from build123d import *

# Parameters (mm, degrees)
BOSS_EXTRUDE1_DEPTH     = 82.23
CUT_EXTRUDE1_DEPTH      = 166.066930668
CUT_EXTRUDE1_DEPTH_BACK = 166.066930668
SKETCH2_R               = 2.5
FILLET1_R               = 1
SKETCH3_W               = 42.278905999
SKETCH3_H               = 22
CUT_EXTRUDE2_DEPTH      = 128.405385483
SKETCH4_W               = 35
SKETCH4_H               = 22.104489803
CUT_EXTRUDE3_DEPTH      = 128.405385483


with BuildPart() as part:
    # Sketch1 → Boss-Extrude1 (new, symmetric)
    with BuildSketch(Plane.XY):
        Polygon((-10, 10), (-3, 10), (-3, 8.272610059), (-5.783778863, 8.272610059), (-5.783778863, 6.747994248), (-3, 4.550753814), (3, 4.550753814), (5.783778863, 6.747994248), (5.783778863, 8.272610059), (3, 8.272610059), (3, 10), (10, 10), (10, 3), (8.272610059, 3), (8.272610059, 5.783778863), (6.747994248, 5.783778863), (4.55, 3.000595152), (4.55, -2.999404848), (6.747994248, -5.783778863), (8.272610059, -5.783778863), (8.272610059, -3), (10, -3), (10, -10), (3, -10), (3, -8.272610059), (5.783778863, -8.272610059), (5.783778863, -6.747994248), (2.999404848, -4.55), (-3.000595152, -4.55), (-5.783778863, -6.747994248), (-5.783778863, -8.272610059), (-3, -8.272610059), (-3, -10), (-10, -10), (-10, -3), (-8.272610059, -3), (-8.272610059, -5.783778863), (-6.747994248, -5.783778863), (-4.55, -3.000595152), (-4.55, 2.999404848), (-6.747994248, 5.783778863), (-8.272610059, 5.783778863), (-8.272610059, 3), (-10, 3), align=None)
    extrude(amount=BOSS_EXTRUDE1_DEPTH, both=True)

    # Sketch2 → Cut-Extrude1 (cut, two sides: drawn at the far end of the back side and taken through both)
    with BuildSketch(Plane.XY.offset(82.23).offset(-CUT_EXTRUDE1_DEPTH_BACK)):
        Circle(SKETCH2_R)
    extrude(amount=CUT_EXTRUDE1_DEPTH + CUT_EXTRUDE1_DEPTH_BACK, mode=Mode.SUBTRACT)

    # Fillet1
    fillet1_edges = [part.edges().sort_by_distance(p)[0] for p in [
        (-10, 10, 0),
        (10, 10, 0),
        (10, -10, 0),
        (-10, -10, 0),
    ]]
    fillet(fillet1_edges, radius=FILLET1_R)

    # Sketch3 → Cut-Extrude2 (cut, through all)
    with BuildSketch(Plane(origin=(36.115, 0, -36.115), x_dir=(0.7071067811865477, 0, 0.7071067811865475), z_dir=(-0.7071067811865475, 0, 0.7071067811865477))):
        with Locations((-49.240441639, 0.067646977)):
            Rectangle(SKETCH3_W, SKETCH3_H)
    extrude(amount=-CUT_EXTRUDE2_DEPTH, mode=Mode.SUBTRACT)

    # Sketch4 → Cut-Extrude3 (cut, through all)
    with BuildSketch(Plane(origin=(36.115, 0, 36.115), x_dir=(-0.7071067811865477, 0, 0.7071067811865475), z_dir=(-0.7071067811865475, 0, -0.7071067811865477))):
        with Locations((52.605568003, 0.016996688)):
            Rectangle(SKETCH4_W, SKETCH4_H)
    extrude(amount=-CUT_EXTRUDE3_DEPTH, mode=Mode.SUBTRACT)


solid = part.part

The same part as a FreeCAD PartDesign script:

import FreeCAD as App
import Part
import Sketcher
from FreeCAD import Vector
Q = App.Units.Quantity


def edges_at(feature, points):
    """Names of the edges that pass closest to the given points."""
    edges = feature.Shape.Edges
    near = lambda p: min(range(len(edges)), key=lambda i: edges[i].distToShape(Part.Vertex(*p))[0])
    return sorted({f"Edge{near(p) + 1}" for p in points})

doc = App.newDocument("Part")
body = doc.addObject("PartDesign::Body", "Body")

# Sketch on XY plane
sketch1 = doc.addObject("Sketcher::SketchObject", "Sketch")
body.addObject(sketch1)
sketch1.AttachmentSupport = (doc.XY_Plane, [""])
sketch1.MapMode = "FlatFace"
sketch1.addGeometry(Part.LineSegment(Vector(-3, 10, 0), Vector(-10, 10, 0)), False)
sketch1.addGeometry(Part.LineSegment(Vector(-10, 10, 0), Vector(-10, 3, 0)), False)
sketch1.addGeometry(Part.LineSegment(Vector(-10, 3, 0), Vector(-8.3, 3, 0)), False)
sketch1.addGeometry(Part.LineSegment(Vector(-8.3, 3, 0), Vector(-8.3, 5.8, 0)), False)
sketch1.addGeometry(Part.LineSegment(Vector(-8.3, 5.8, 0), Vector(-6.7, 5.8, 0)), False)
sketch1.addGeometry(Part.LineSegment(Vector(-6.7, 5.8, 0), Vector(-4.5, 3, 0)), False)
sketch1.addGeometry(Part.LineSegment(Vector(-4.5, 3, 0), Vector(-4.5, -3, 0)), False)
sketch1.addGeometry(Part.LineSegment(Vector(-4.5, -3, 0), Vector(-6.7, -5.8, 0)), False)
sketch1.addGeometry(Part.LineSegment(Vector(-6.7, -5.8, 0), Vector(-8.3, -5.8, 0)), False)
sketch1.addGeometry(Part.LineSegment(Vector(-8.3, -5.8, 0), Vector(-8.3, -3, 0)), False)
sketch1.addGeometry(Part.LineSegment(Vector(-8.3, -3, 0), Vector(-10, -3, 0)), False)
sketch1.addGeometry(Part.LineSegment(Vector(-10, -3, 0), Vector(-10, -10, 0)), False)
sketch1.addGeometry(Part.LineSegment(Vector(-10, -10, 0), Vector(-3, -10, 0)), False)
sketch1.addGeometry(Part.LineSegment(Vector(-3, -10, 0), Vector(-3, -8.3, 0)), False)
sketch1.addGeometry(Part.LineSegment(Vector(-3, -8.3, 0), Vector(-5.8, -8.3, 0)), False)
sketch1.addGeometry(Part.LineSegment(Vector(-5.8, -8.3, 0), Vector(-5.8, -6.7, 0)), False)
sketch1.addGeometry(Part.LineSegment(Vector(-5.8, -6.7, 0), Vector(-3, -4.5, 0)), False)
sketch1.addGeometry(Part.LineSegment(Vector(-3, -4.5, 0), Vector(3, -4.5, 0)), False)
sketch1.addGeometry(Part.LineSegment(Vector(3, -4.5, 0), Vector(5.8, -6.7, 0)), False)
sketch1.addGeometry(Part.LineSegment(Vector(5.8, -6.7, 0), Vector(5.8, -8.3, 0)), False)
sketch1.addGeometry(Part.LineSegment(Vector(5.8, -8.3, 0), Vector(3, -8.3, 0)), False)
sketch1.addGeometry(Part.LineSegment(Vector(3, -8.3, 0), Vector(3, -10, 0)), False)
sketch1.addGeometry(Part.LineSegment(Vector(3, -10, 0), Vector(10, -10, 0)), False)
sketch1.addGeometry(Part.LineSegment(Vector(10, -10, 0), Vector(10, -3, 0)), False)
sketch1.addGeometry(Part.LineSegment(Vector(10, -3, 0), Vector(8.3, -3, 0)), False)
sketch1.addGeometry(Part.LineSegment(Vector(8.3, -3, 0), Vector(8.3, -5.8, 0)), False)
sketch1.addGeometry(Part.LineSegment(Vector(8.3, -5.8, 0), Vector(6.7, -5.8, 0)), False)
sketch1.addGeometry(Part.LineSegment(Vector(6.7, -5.8, 0), Vector(4.5, -3, 0)), False)
sketch1.addGeometry(Part.LineSegment(Vector(4.5, -3, 0), Vector(4.5, 3, 0)), False)
sketch1.addGeometry(Part.LineSegment(Vector(4.5, 3, 0), Vector(6.7, 5.8, 0)), False)
sketch1.addGeometry(Part.LineSegment(Vector(6.7, 5.8, 0), Vector(8.3, 5.8, 0)), False)
sketch1.addGeometry(Part.LineSegment(Vector(8.3, 5.8, 0), Vector(8.3, 3, 0)), False)
sketch1.addGeometry(Part.LineSegment(Vector(8.3, 3, 0), Vector(10, 3, 0)), False)
sketch1.addGeometry(Part.LineSegment(Vector(10, 3, 0), Vector(10, 10, 0)), False)
sketch1.addGeometry(Part.LineSegment(Vector(10, 10, 0), Vector(3, 10, 0)), False)
sketch1.addGeometry(Part.LineSegment(Vector(3, 10, 0), Vector(3, 8.3, 0)), False)
sketch1.addGeometry(Part.LineSegment(Vector(3, 8.3, 0), Vector(5.8, 8.3, 0)), False)
sketch1.addGeometry(Part.LineSegment(Vector(5.8, 8.3, 0), Vector(5.8, 6.7, 0)), False)
sketch1.addGeometry(Part.LineSegment(Vector(5.8, 6.7, 0), Vector(3, 4.6, 0)), False)
sketch1.addGeometry(Part.LineSegment(Vector(3, 4.6, 0), Vector(-3, 4.6, 0)), False)
sketch1.addGeometry(Part.LineSegment(Vector(-3, 4.6, 0), Vector(-5.8, 6.7, 0)), False)
sketch1.addGeometry(Part.LineSegment(Vector(-5.8, 6.7, 0), Vector(-5.8, 8.3, 0)), False)
sketch1.addGeometry(Part.LineSegment(Vector(-5.8, 8.3, 0), Vector(-3, 8.3, 0)), False)
sketch1.addGeometry(Part.LineSegment(Vector(-3, 8.3, 0), Vector(-3, 10, 0)), False)
sketch1.addConstraint(Sketcher.Constraint("Coincident", 0, 2, 1, 1))
sketch1.addConstraint(Sketcher.Constraint("Coincident", 1, 2, 2, 1))
sketch1.addConstraint(Sketcher.Constraint("Coincident", 2, 2, 3, 1))
sketch1.addConstraint(Sketcher.Constraint("Coincident", 3, 2, 4, 1))
sketch1.addConstraint(Sketcher.Constraint("Coincident", 4, 2, 5, 1))
sketch1.addConstraint(Sketcher.Constraint("Coincident", 5, 2, 6, 1))
sketch1.addConstraint(Sketcher.Constraint("Coincident", 6, 2, 7, 1))
sketch1.addConstraint(Sketcher.Constraint("Coincident", 7, 2, 8, 1))
sketch1.addConstraint(Sketcher.Constraint("Coincident", 8, 2, 9, 1))
sketch1.addConstraint(Sketcher.Constraint("Coincident", 9, 2, 10, 1))
sketch1.addConstraint(Sketcher.Constraint("Coincident", 10, 2, 11, 1))
sketch1.addConstraint(Sketcher.Constraint("Coincident", 11, 2, 12, 1))
sketch1.addConstraint(Sketcher.Constraint("Coincident", 12, 2, 13, 1))
sketch1.addConstraint(Sketcher.Constraint("Coincident", 13, 2, 14, 1))
sketch1.addConstraint(Sketcher.Constraint("Coincident", 14, 2, 15, 1))
sketch1.addConstraint(Sketcher.Constraint("Coincident", 15, 2, 16, 1))
sketch1.addConstraint(Sketcher.Constraint("Coincident", 16, 2, 17, 1))
sketch1.addConstraint(Sketcher.Constraint("Coincident", 17, 2, 18, 1))
sketch1.addConstraint(Sketcher.Constraint("Coincident", 18, 2, 19, 1))
sketch1.addConstraint(Sketcher.Constraint("Coincident", 19, 2, 20, 1))
sketch1.addConstraint(Sketcher.Constraint("Coincident", 20, 2, 21, 1))
sketch1.addConstraint(Sketcher.Constraint("Coincident", 21, 2, 22, 1))
sketch1.addConstraint(Sketcher.Constraint("Coincident", 22, 2, 23, 1))
sketch1.addConstraint(Sketcher.Constraint("Coincident", 23, 2, 24, 1))
sketch1.addConstraint(Sketcher.Constraint("Coincident", 24, 2, 25, 1))
sketch1.addConstraint(Sketcher.Constraint("Coincident", 25, 2, 26, 1))
sketch1.addConstraint(Sketcher.Constraint("Coincident", 26, 2, 27, 1))
sketch1.addConstraint(Sketcher.Constraint("Coincident", 27, 2, 28, 1))
sketch1.addConstraint(Sketcher.Constraint("Coincident", 28, 2, 29, 1))
sketch1.addConstraint(Sketcher.Constraint("Coincident", 29, 2, 30, 1))
sketch1.addConstraint(Sketcher.Constraint("Coincident", 30, 2, 31, 1))
sketch1.addConstraint(Sketcher.Constraint("Coincident", 31, 2, 32, 1))
sketch1.addConstraint(Sketcher.Constraint("Coincident", 32, 2, 33, 1))
sketch1.addConstraint(Sketcher.Constraint("Coincident", 33, 2, 34, 1))
sketch1.addConstraint(Sketcher.Constraint("Coincident", 34, 2, 35, 1))
sketch1.addConstraint(Sketcher.Constraint("Coincident", 35, 2, 36, 1))
sketch1.addConstraint(Sketcher.Constraint("Coincident", 36, 2, 37, 1))
sketch1.addConstraint(Sketcher.Constraint("Coincident", 37, 2, 38, 1))
sketch1.addConstraint(Sketcher.Constraint("Coincident", 38, 2, 39, 1))
sketch1.addConstraint(Sketcher.Constraint("Coincident", 39, 2, 40, 1))
sketch1.addConstraint(Sketcher.Constraint("Coincident", 40, 2, 41, 1))
sketch1.addConstraint(Sketcher.Constraint("Coincident", 41, 2, 42, 1))
sketch1.addConstraint(Sketcher.Constraint("Coincident", 42, 2, 43, 1))
sketch1.addConstraint(Sketcher.Constraint("Coincident", 43, 2, 0, 1))
sketch1.addConstraint(Sketcher.Constraint("Horizontal", 0))
sketch1.addConstraint(Sketcher.Constraint("Vertical", 1))
sketch1.addConstraint(Sketcher.Constraint("Horizontal", 2))
sketch1.addConstraint(Sketcher.Constraint("Vertical", 3))
sketch1.addConstraint(Sketcher.Constraint("Horizontal", 4))
sketch1.addConstraint(Sketcher.Constraint("Vertical", 6))
sketch1.addConstraint(Sketcher.Constraint("Horizontal", 8))
sketch1.addConstraint(Sketcher.Constraint("Vertical", 9))
sketch1.addConstraint(Sketcher.Constraint("Horizontal", 10))
sketch1.addConstraint(Sketcher.Constraint("Vertical", 11))
sketch1.addConstraint(Sketcher.Constraint("Horizontal", 12))
sketch1.addConstraint(Sketcher.Constraint("Vertical", 13))
sketch1.addConstraint(Sketcher.Constraint("Horizontal", 14))
sketch1.addConstraint(Sketcher.Constraint("Vertical", 15))
sketch1.addConstraint(Sketcher.Constraint("Horizontal", 17))
sketch1.addConstraint(Sketcher.Constraint("Vertical", 19))
sketch1.addConstraint(Sketcher.Constraint("Horizontal", 20))
sketch1.addConstraint(Sketcher.Constraint("Vertical", 21))
sketch1.addConstraint(Sketcher.Constraint("Horizontal", 22))
sketch1.addConstraint(Sketcher.Constraint("Vertical", 23))
sketch1.addConstraint(Sketcher.Constraint("Horizontal", 24))
sketch1.addConstraint(Sketcher.Constraint("Vertical", 25))
sketch1.addConstraint(Sketcher.Constraint("Horizontal", 26))
sketch1.addConstraint(Sketcher.Constraint("Vertical", 28))
sketch1.addConstraint(Sketcher.Constraint("Horizontal", 30))
sketch1.addConstraint(Sketcher.Constraint("Vertical", 31))
sketch1.addConstraint(Sketcher.Constraint("Horizontal", 32))
sketch1.addConstraint(Sketcher.Constraint("Vertical", 33))
sketch1.addConstraint(Sketcher.Constraint("Horizontal", 34))
sketch1.addConstraint(Sketcher.Constraint("Vertical", 35))
sketch1.addConstraint(Sketcher.Constraint("Horizontal", 36))
sketch1.addConstraint(Sketcher.Constraint("Vertical", 37))
sketch1.addConstraint(Sketcher.Constraint("Horizontal", 39))
sketch1.addConstraint(Sketcher.Constraint("Vertical", 41))
sketch1.addConstraint(Sketcher.Constraint("Horizontal", 42))
sketch1.addConstraint(Sketcher.Constraint("Vertical", 43))
sketch1.addConstraint(Sketcher.Constraint("Symmetric", 0, 2, 22, 2, -1, 1))
sketch1.addConstraint(Sketcher.Constraint("Symmetric", 2, 2, 24, 2, -1, 1))
sketch1.addConstraint(Sketcher.Constraint("Symmetric", 4, 2, 26, 2, -1, 1))
sketch1.addConstraint(Sketcher.Constraint("Symmetric", 5, 2, 27, 2, -1, 1))
sketch1.addConstraint(Sketcher.Constraint("Symmetric", 7, 2, 29, 2, -1, 1))
sketch1.addConstraint(Sketcher.Constraint("Symmetric", 9, 2, 31, 2, -1, 1))
sketch1.addConstraint(Sketcher.Constraint("Symmetric", 11, 2, 33, 2, -1, 1))
sketch1.addConstraint(Sketcher.Constraint("Symmetric", 13, 2, 35, 2, -1, 1))
sketch1.addConstraint(Sketcher.Constraint("Symmetric", 15, 2, 37, 2, -1, 1))
sketch1.addConstraint(Sketcher.Constraint("Symmetric", 18, 2, 40, 2, -1, 1))
sketch1.addConstraint(Sketcher.Constraint("Symmetric", 20, 2, 42, 2, -1, 1))
sketch1.addConstraint(Sketcher.Constraint("Symmetric", 15, 2, 18, 2, -2))
sketch1.addConstraint(Sketcher.Constraint("Symmetric", 13, 2, 20, 2, -2))
sketch1.addConstraint(Sketcher.Constraint("Symmetric", 11, 2, 22, 2, -2))
sketch1.addConstraint(Sketcher.Constraint("Symmetric", 9, 2, 24, 2, -2))
sketch1.addConstraint(Sketcher.Constraint("Symmetric", 7, 2, 26, 2, -2))
sketch1.addConstraint(Sketcher.Constraint("Parallel", 7, 29))
sketch1.addConstraint(Sketcher.Constraint("Vertical", 35, 2, 38, 2))
sketch1.addConstraint(Sketcher.Constraint("Vertical", 13, 2, 39, 2))
sketch1.addConstraint(Sketcher.Constraint("Equal", 17, 39))
sketch1.addConstraint(Sketcher.Constraint("Equal", 34, 1))
sketch1.addConstraint(Sketcher.Constraint("Equal", 42, 3))
sketch1.addConstraint(Sketcher.Constraint("Equal", 39, 6))
sketch1.addConstraint(Sketcher.Constraint("Equal", 32, 13))
sketch1.addConstraint(Sketcher.Constraint("Equal", 30, 15))
sketch1.addConstraint(Sketcher.Constraint("Equal", 7, 16))
sketch1.addConstraint(Sketcher.Constraint("Equal", 5, 18))
sketch1.addConstraint(Sketcher.Constraint("Equal", 29, 38))
sketch1.addConstraint(Sketcher.Constraint("DistanceX", 0, 2, 0, 1, Q("7 mm")))
sketch1.addConstraint(Sketcher.Constraint("DistanceX", 17, 1, 17, 2, Q("6 mm")))
sketch1.addConstraint(Sketcher.Constraint("DistanceY", -1, 1, 0, 2, Q("10 mm")))
sketch1.addConstraint(Sketcher.Constraint("DistanceX", 5, 2, -1, 1, Q("4.55 mm")))
sketch1.addConstraint(Sketcher.Constraint("DistanceX", 2, 1, 2, 2, Q("1.72739 mm")))
sketch1.addConstraint(Sketcher.Constraint("DistanceX", 14, 2, 14, 1, Q("2.783779 mm")))
sketch1.addConstraint(Sketcher.Constraint("DistanceY", 15, 2, 6, 2, Q("3.747399 mm")))
sketch1.addConstraint(Sketcher.Constraint("Distance", 5, Q("3.547382 mm")))
pad1 = doc.addObject("PartDesign::Pad", "Pad")
body.addObject(pad1)
pad1.Profile = sketch1
pad1.Length = 164.46
pad1.Midplane = True

# Sketch on XY plane
sketch2 = doc.addObject("Sketcher::SketchObject", "Sketch001")
body.addObject(sketch2)
sketch2.AttachmentSupport = (doc.XY_Plane, [""])
sketch2.MapMode = "FlatFace"
sketch2.AttachmentOffset = App.Placement(Vector(0, 0, 82.23), App.Rotation())
sketch2.addGeometry(Part.Circle(Vector(0, 0, 0), Vector(0, 0, 1), 2.5), False)
sketch2.addConstraint(Sketcher.Constraint("Coincident", 0, 3, -1, 1))
sketch2.addConstraint(Sketcher.Constraint("Diameter", 0, Q("5 mm")))
pocket1 = doc.addObject("PartDesign::Pocket", "Pocket")
body.addObject(pocket1)
pocket1.Profile = sketch2
pocket1.Type = "ThroughAll"
pocket1.Midplane = True
doc.recompute()

fillet = doc.addObject("PartDesign::Fillet", "Fillet")
body.addObject(fillet)
fillet.Base = (pocket1, edges_at(pocket1, [
    (-10, 10, 0),
    (10, 10, 0),
    (10, -10, 0),
    (-10, -10, 0),
]))
fillet.Radius = 1

# Sketch on an angled plane
sketch3 = doc.addObject("Sketcher::SketchObject", "Sketch002")
body.addObject(sketch3)
sketch3.Placement = App.Placement(Vector(36.115, 0, -36.115), App.Rotation(Vector(0.707106781, 0, 0.707106781), Vector(0, 0.999999999, 0), Vector(-0.707106781, 0, 0.707106781), "ZXY"))
sketch3.addGeometry(Part.LineSegment(Vector(-70, 11, 0), Vector(-70, -11, 0)), False)
sketch3.addGeometry(Part.LineSegment(Vector(-70, -11, 0), Vector(-28, -11, 0)), False)
sketch3.addGeometry(Part.LineSegment(Vector(-28, -11, 0), Vector(-28, 11, 0)), False)
sketch3.addGeometry(Part.LineSegment(Vector(-28, 11, 0), Vector(-70, 11, 0)), False)
sketch3.addConstraint(Sketcher.Constraint("Coincident", 0, 2, 1, 1))
sketch3.addConstraint(Sketcher.Constraint("Coincident", 1, 2, 2, 1))
sketch3.addConstraint(Sketcher.Constraint("Coincident", 2, 2, 3, 1))
sketch3.addConstraint(Sketcher.Constraint("Coincident", 3, 2, 0, 1))
sketch3.addConstraint(Sketcher.Constraint("Vertical", 0))
sketch3.addConstraint(Sketcher.Constraint("Horizontal", 1))
sketch3.addConstraint(Sketcher.Constraint("Vertical", 2))
sketch3.addConstraint(Sketcher.Constraint("Horizontal", 3))
sketch3.addConstraint(Sketcher.Constraint("DistanceY", 0, 2, 0, 1, Q("22 mm")))
sketch3.addConstraint(Sketcher.Constraint("DistanceX", 1, 1, 1, 2, Q("42.278906 mm")))
sketch3.addConstraint(Sketcher.Constraint("DistanceX", 1, 2, -1, 1, Q("28.100989 mm")))
sketch3.addConstraint(Sketcher.Constraint("DistanceY", 0, 2, -1, 1, Q("10.932353 mm")))
pocket2 = doc.addObject("PartDesign::Pocket", "Pocket001")
body.addObject(pocket2)
pocket2.Profile = sketch3
pocket2.Type = "ThroughAll"

# Sketch on an angled plane
sketch4 = doc.addObject("Sketcher::SketchObject", "Sketch003")
body.addObject(sketch4)
sketch4.Placement = App.Placement(Vector(36.115, 0, 36.115), App.Rotation(Vector(-0.707106781, 0, 0.707106781), Vector(0, 0.999999999, 0), Vector(-0.707106781, 0, -0.707106781), "ZXY"))
sketch4.addGeometry(Part.LineSegment(Vector(35, 11, 0), Vector(35, -11, 0)), False)
sketch4.addGeometry(Part.LineSegment(Vector(35, -11, 0), Vector(70, -11, 0)), False)
sketch4.addGeometry(Part.LineSegment(Vector(70, -11, 0), Vector(70, 11, 0)), False)
sketch4.addGeometry(Part.LineSegment(Vector(70, 11, 0), Vector(35, 11, 0)), False)
sketch4.addConstraint(Sketcher.Constraint("Coincident", 0, 2, 1, 1))
sketch4.addConstraint(Sketcher.Constraint("Coincident", 1, 2, 2, 1))
sketch4.addConstraint(Sketcher.Constraint("Coincident", 2, 2, 3, 1))
sketch4.addConstraint(Sketcher.Constraint("Coincident", 3, 2, 0, 1))
sketch4.addConstraint(Sketcher.Constraint("Vertical", 0))
sketch4.addConstraint(Sketcher.Constraint("Horizontal", 1))
sketch4.addConstraint(Sketcher.Constraint("Vertical", 2))
sketch4.addConstraint(Sketcher.Constraint("Horizontal", 3))
sketch4.addConstraint(Sketcher.Constraint("DistanceX", 1, 1, 1, 2, Q("35 mm")))
sketch4.addConstraint(Sketcher.Constraint("DistanceY", 0, 2, 0, 1, Q("22.10449 mm")))
sketch4.addConstraint(Sketcher.Constraint("DistanceY", 0, 2, -1, 1, Q("11.035248 mm")))
sketch4.addConstraint(Sketcher.Constraint("DistanceX", -1, 1, 0, 2, Q("35.105568 mm")))
pocket3 = doc.addObject("PartDesign::Pocket", "Pocket002")
body.addObject(pocket3)
pocket3.Profile = sketch4
pocket3.Type = "ThroughAll"

doc.recompute()
